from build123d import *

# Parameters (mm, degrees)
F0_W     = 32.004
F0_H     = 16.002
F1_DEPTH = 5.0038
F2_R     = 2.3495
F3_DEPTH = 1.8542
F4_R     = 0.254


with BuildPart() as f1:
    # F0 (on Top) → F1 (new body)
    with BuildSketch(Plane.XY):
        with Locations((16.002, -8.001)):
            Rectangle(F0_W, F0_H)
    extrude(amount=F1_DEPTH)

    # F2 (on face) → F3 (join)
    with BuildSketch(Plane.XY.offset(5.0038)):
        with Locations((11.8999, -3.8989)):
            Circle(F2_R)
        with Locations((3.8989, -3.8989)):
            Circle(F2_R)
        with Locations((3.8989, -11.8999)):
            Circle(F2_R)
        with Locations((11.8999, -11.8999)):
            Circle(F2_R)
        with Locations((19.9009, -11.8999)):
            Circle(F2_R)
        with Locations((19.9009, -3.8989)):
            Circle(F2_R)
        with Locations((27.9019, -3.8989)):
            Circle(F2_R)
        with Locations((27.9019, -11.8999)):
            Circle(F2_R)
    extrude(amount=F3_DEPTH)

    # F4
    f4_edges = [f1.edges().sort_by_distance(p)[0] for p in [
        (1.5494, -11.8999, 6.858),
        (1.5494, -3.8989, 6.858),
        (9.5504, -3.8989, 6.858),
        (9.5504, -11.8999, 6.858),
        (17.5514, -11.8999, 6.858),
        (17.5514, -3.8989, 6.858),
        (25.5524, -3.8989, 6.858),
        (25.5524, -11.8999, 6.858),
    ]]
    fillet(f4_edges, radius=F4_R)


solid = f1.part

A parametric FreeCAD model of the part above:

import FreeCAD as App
import Part
import Sketcher
Q = App.Units.Quantity


def edges_at(feature, points):
    """Names of the edges that pass closest to the given points."""
    edges = feature.Shape.Edges
    near = lambda p: min(range(len(edges)), key=lambda i: edges[i].distToShape(Part.Vertex(*p))[0])
    return sorted({f"Edge{near(p) + 1}" for p in points})


def add_polygon(sketch, points):
    """Adds a closed chain of lines whose ends are joined by coincident constraints."""
    first, n = sketch.GeometryCount, len(points)
    for a, b in zip(points, points[1:] + points[:1]):
        sketch.addGeometry(Part.LineSegment(App.Vector(*a, 0), App.Vector(*b, 0)), False)
    for i in range(n):
        sketch.addConstraint(Sketcher.Constraint("Coincident", first + i, 2, first + (i + 1) % n, 1))

doc = App.newDocument("Part")
params = doc.addObject("Spreadsheet::Sheet", "Params")
for row, (alias, value) in enumerate([
    ("sketch1_width", "1.26 in"),
    ("sketch1_height", "0.63 in"),
    ("pad1_length", "0.197 in"),
    ("sketch2_diameter", "0.185 in"),
    ("pad2_length", "0.073 in"),
    ("fillet_radius", "0.01 in"),
], start=1):
    params.set(f"A{row}", alias)
    params.set(f"B{row}", "=" + value)
    params.setAlias(f"B{row}", alias)

body = doc.addObject("PartDesign::Body", "Body")

sketch1 = body.newObject("Sketcher::SketchObject", "Sketch")
sketch1.AttachmentSupport = (doc.getObject("XY_Plane"), [""])
sketch1.MapMode = "FlatFace"
add_polygon(sketch1, [(0, 0), (0, -16), (32, -16), (32, 0)])
sketch1.addConstraint([
    Sketcher.Constraint("Vertical", 0),
    Sketcher.Constraint("Horizontal", 1),
    Sketcher.Constraint("Vertical", 2),
    Sketcher.Constraint("Horizontal", 3),
    Sketcher.Constraint("Coincident", 3, 2, -1, 1),
    Sketcher.Constraint("DistanceX", 1, 1, 1, 2, Q("1.26 in")),
    Sketcher.Constraint("DistanceY", 0, 2, 0, 1, Q("0.63 in")),
])
sketch1.setExpression("Constraints[9]", "Params.sketch1_width")
sketch1.setExpression("Constraints[10]", "Params.sketch1_height")
pad1 = body.newObject("PartDesign::Pad", "Pad")
pad1.Profile = sketch1
pad1.setExpression("Length", "Params.pad1_length")

sketch2 = body.newObject("Sketcher::SketchObject", "Sketch001")
sketch2.AttachmentSupport = (doc.getObject("XY_Plane"), [""])
sketch2.MapMode = "FlatFace"
sketch2.AttachmentOffset = App.Placement(App.Vector(0, 0, 0.197 * 25.4), App.Rotation())
sketch2.addGeometry([
    Part.Circle(App.Vector(11.9, -3.9, 0), App.Vector(0, 0, 1), 2.3),
    Part.Circle(App.Vector(3.9, -3.9, 0), App.Vector(0, 0, 1), 2.3),
    Part.Circle(App.Vector(3.9, -11.9, 0), App.Vector(0, 0, 1), 2.3),
    Part.Circle(App.Vector(11.9, -11.9, 0), App.Vector(0, 0, 1), 2.3),
    Part.Circle(App.Vector(19.9, -11.9, 0), App.Vector(0, 0, 1), 2.3),
    Part.Circle(App.Vector(19.9, -3.9, 0), App.Vector(0, 0, 1), 2.3),
    Part.Circle(App.Vector(27.9, -3.9, 0), App.Vector(0, 0, 1), 2.3),
    Part.Circle(App.Vector(27.9, -11.9, 0), App.Vector(0, 0, 1), 2.3),
], False)
sketch2.addConstraint([
    Sketcher.Constraint("Equal", 0, 1),
    Sketcher.Constraint("Equal", 1, 2),
    Sketcher.Constraint("Equal", 2, 3),
    Sketcher.Constraint("Equal", 3, 4),
    Sketcher.Constraint("Equal", 4, 5),
    Sketcher.Constraint("Equal", 5, 6),
    Sketcher.Constraint("Equal", 6, 7),
    Sketcher.Constraint("Horizontal", 0, 3, 1, 3),
    Sketcher.Constraint("Horizontal", 2, 3, 3, 3),
    Sketcher.Constraint("Horizontal", 3, 3, 4, 3),
    Sketcher.Constraint("Horizontal", 1, 3, 5, 3),
    Sketcher.Constraint("Horizontal", 5, 3, 6, 3),
    Sketcher.Constraint("Horizontal", 4, 3, 7, 3),
    Sketcher.Constraint("Vertical", 1, 3, 2, 3),
    Sketcher.Constraint("Vertical", 0, 3, 3, 3),
    Sketcher.Constraint("Vertical", 4, 3, 5, 3),
    Sketcher.Constraint("Vertical", 6, 3, 7, 3),
    Sketcher.Constraint("Diameter", 0, Q("0.185 in")),
    Sketcher.Constraint("DistanceX", 2, 3, 4, 3, Q("0.63 in")),
    Sketcher.Constraint("DistanceX", 0, 3, 6, 3, Q("0.63 in")),
    Sketcher.Constraint("DistanceX", 1, 3, 0, 3, Q("0.315 in")),
    Sketcher.Constraint("DistanceY", 2, 3, 1, 3, Q("0.315 in")),
    Sketcher.Constraint("DistanceX", -1, 1, 0, 3, Q("0.4685 in")),
    Sketcher.Constraint("DistanceY", 0, 3, -1, 1, Q("0.1535 in")),
])
sketch2.setExpression("Constraints[17]", "Params.sketch2_diameter")
pad2 = body.newObject("PartDesign::Pad", "Pad001")
pad2.Profile = sketch2
pad2.setExpression("Length", "Params.pad2_length")
doc.recompute()

fillet = body.newObject("PartDesign::Fillet", "Fillet")
fillet.Base = (pad2, edges_at(pad2, [
    (1.549, -11.9, 6.858),
    (1.549, -3.899, 6.858),
    (9.55, -3.899, 6.858),
    (9.55, -11.9, 6.858),
    (17.551, -11.9, 6.858),
    (17.551, -3.899, 6.858),
    (25.552, -3.899, 6.858),
    (25.552, -11.9, 6.858),
]))
fillet.setExpression("Radius", "Params.fillet_radius")

doc.recompute()
